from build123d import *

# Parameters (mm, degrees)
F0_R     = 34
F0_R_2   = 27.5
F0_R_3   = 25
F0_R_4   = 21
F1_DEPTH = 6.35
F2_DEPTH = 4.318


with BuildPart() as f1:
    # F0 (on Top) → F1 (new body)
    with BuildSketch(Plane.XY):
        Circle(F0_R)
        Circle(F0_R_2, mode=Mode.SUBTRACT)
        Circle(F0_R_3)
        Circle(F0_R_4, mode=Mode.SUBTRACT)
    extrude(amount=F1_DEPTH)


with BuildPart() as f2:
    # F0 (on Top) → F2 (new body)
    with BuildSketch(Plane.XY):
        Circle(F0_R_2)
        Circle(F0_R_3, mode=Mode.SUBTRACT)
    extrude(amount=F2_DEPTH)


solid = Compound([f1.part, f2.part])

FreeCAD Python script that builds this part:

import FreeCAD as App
import Part
import Sketcher
Q = App.Units.Quantity

doc = App.newDocument("Part")
body = doc.addObject("PartDesign::Body", "Body")
body.AllowCompound = True

# Sketch on XY plane
sketch1 = doc.addObject("Sketcher::SketchObject", "Sketch")
body.addObject(sketch1)
sketch1.AttachmentSupport = (doc.XY_Plane, [""])
sketch1.MapMode = "FlatFace"
sketch1.addGeometry(Part.Circle(App.Vector(0, 0, 0), App.Vector(0, 0, 1), 34), False)
sketch1.addGeometry(Part.Circle(App.Vector(0, 0, 0), App.Vector(0, 0, 1), 28), False)
sketch1.addGeometry(Part.Circle(App.Vector(0, 0, 0), App.Vector(0, 0, 1), 25), False)
sketch1.addGeometry(Part.Circle(App.Vector(0, 0, 0), App.Vector(0, 0, 1), 21), False)
sketch1.addConstraint(Sketcher.Constraint("Coincident", 0, 3, -1, 1))
sketch1.addConstraint(Sketcher.Constraint("Coincident", 1, 3, -1, 1))
sketch1.addConstraint(Sketcher.Constraint("Coincident", 2, 3, -1, 1))
sketch1.addConstraint(Sketcher.Constraint("Coincident", 3, 3, -1, 1))
sketch1.addConstraint(Sketcher.Constraint("Diameter", 0, Q("68 mm")))
sketch1.addConstraint(Sketcher.Constraint("Diameter", 1, Q("55 mm")))
sketch1.addConstraint(Sketcher.Constraint("Diameter", 2, Q("50 mm")))
sketch1.addConstraint(Sketcher.Constraint("Diameter", 3, Q("42 mm")))
pad1 = doc.addObject("PartDesign::Pad", "Pad")
body.addObject(pad1)
pad1.Profile = sketch1
pad1.Length = 6.35
body2 = doc.addObject("PartDesign::Body", "Body001")

# Sketch on XY plane
sketch2 = doc.addObject("Sketcher::SketchObject", "Sketch001")
body2.addObject(sketch2)
sketch2.AttachmentSupport = (doc.getObject("XY_Plane001"), [""])
sketch2.MapMode = "FlatFace"
sketch2.addGeometry(Part.Circle(App.Vector(0, 0, 0), App.Vector(0, 0, 1), 28), False)
sketch2.addGeometry(Part.Circle(App.Vector(0, 0, 0), App.Vector(0, 0, 1), 25), False)
sketch2.addConstraint(Sketcher.Constraint("Coincident", 0, 3, -1, 1))
sketch2.addConstraint(Sketcher.Constraint("Coincident", 1, 3, -1, 1))
sketch2.addConstraint(Sketcher.Constraint("Diameter", 0, Q("55 mm")))
sketch2.addConstraint(Sketcher.Constraint("Diameter", 1, Q("50 mm")))
pad2 = doc.addObject("PartDesign::Pad", "Pad001")
body2.addObject(pad2)
pad2.Profile = sketch2
pad2.Length = 4.318

doc.recompute()
